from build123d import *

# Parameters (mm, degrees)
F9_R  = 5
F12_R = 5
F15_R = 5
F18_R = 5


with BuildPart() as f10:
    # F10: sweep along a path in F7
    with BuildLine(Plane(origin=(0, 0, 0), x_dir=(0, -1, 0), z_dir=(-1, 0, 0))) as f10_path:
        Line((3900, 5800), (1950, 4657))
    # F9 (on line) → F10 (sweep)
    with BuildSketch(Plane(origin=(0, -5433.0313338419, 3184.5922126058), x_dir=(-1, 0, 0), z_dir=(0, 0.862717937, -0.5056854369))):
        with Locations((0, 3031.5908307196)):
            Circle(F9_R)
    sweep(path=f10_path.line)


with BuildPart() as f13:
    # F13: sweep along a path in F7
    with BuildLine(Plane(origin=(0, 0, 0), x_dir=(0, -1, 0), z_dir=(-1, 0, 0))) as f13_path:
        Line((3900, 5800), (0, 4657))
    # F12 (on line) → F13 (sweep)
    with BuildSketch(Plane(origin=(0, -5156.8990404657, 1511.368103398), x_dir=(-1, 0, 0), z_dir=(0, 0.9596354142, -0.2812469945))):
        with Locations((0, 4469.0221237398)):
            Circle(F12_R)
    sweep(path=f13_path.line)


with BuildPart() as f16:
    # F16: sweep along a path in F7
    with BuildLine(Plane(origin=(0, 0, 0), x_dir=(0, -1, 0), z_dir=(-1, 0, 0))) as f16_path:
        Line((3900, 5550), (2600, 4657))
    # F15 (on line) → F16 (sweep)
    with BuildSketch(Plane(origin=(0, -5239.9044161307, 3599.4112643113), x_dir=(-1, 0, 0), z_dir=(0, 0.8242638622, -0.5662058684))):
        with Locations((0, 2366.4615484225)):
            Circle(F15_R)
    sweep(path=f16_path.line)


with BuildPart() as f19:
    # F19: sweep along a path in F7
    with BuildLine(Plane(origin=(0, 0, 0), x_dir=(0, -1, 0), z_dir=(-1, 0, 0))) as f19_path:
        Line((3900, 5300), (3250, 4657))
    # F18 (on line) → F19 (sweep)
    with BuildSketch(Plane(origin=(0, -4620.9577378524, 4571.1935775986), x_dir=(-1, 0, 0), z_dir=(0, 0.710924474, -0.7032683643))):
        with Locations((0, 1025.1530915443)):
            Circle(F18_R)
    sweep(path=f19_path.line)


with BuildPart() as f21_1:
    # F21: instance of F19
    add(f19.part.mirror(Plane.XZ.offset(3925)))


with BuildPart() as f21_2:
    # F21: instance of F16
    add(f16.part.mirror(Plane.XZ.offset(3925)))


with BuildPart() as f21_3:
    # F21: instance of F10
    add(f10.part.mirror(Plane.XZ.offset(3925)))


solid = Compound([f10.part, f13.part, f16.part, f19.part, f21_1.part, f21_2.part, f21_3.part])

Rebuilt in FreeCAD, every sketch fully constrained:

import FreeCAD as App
import Part
import Sketcher
from FreeCAD import Vector
Q = App.Units.Quantity

doc = App.newDocument("Part")
body = doc.addObject("PartDesign::Body", "Body")

# Sketch on an angled plane
sketch1 = body.newObject("Sketcher::SketchObject", "Sketch")
sketch1.Placement = App.Placement(Vector(0, -5433.031334, 3184.592213), App.Rotation(Vector(-1, 0, 0), Vector(0, 0.505685437, 0.862717937), Vector(0, 0.862717937, -0.505685437), "ZXY"))
sketch1.addGeometry(Part.Circle(Vector(0, 3032, 0), Vector(0, 0, 1), 5), False)
sketch1.addConstraint([
    Sketcher.Constraint("PointOnObject", 0, 3, -2),
    Sketcher.Constraint("Diameter", 0, Q("10 mm")),
    Sketcher.Constraint("DistanceY", -1, 1, 0, 3, Q("3031.590831 mm")),
])

# Sketch on an angled plane
sketch2 = body.newObject("Sketcher::SketchObject", "Sketch001")
sketch2.Placement = App.Placement(Vector(0, 1533.031334, 2615.407787), App.Rotation(Vector(0, -0.862717937, 0.505685437), Vector(1, 0, 0), Vector(0, 0.505685437, 0.862717937), "ZXY"))
sketch2.addGeometry(Part.LineSegment(Vector(6298, 0, 0), Vector(4037, 0, 0)), False)
sketch2.addConstraint([
    Sketcher.Constraint("Horizontal", 0),
    Sketcher.Constraint("PointOnObject", 0, 1, -1),
    Sketcher.Constraint("DistanceX", 0, 2, 0, 1, Q("2260.298432 mm")),
    Sketcher.Constraint("DistanceX", -1, 1, 0, 1, Q("6297.575489 mm")),
])
doc.recompute()

additivepipe = body.newObject("PartDesign::AdditivePipe", "AdditivePipe")
additivepipe.Profile = sketch1
additivepipe.Spine = (sketch2, ["Edge1"])
body2 = doc.addObject("PartDesign::Body", "Body001")

# Sketch on an angled plane
sketch3 = body2.newObject("Sketcher::SketchObject", "Sketch002")
sketch3.Placement = App.Placement(Vector(0, -5156.89904, 1511.368103), App.Rotation(Vector(-1, 0, 0), Vector(0, 0.281246994, 0.959635414), Vector(0, 0.959635414, -0.281246994), "ZXY"))
sketch3.addGeometry(Part.Circle(Vector(0, 4469, 0), Vector(0, 0, 1), 5), False)
sketch3.addConstraint([
    Sketcher.Constraint("PointOnObject", 0, 3, -2),
    Sketcher.Constraint("Diameter", 0, Q("10 mm")),
    Sketcher.Constraint("DistanceY", -1, 1, 0, 3, Q("4469.022121 mm")),
])

# Sketch on an angled plane
sketch4 = body2.newObject("Sketcher::SketchObject", "Sketch003")
sketch4.Placement = App.Placement(Vector(0, 1256.89904, 4288.631897), App.Rotation(Vector(0, 0.959635414, -0.281246994), Vector(0.999999999, 0, 0), Vector(0, -0.281246994, -0.959635414), "ZXY"))
sketch4.addGeometry(Part.LineSegment(Vector(-5374, 0, 0), Vector(-1310, 0, 0)), False)
sketch4.addConstraint([
    Sketcher.Constraint("Horizontal", 0),
    Sketcher.Constraint("PointOnObject", 0, 1, -1),
    Sketcher.Constraint("DistanceX", 0, 1, 0, 2, Q("4064.043428 mm")),
    Sketcher.Constraint("DistanceX", 0, 1, -1, 1, Q("5373.81068 mm")),
])
doc.recompute()

additivepipe2 = body2.newObject("PartDesign::AdditivePipe", "AdditivePipe001")
additivepipe2.Profile = sketch3
additivepipe2.Spine = (sketch4, ["Edge1"])
body3 = doc.addObject("PartDesign::Body", "Body002")

# Sketch on an angled plane
sketch5 = body3.newObject("Sketcher::SketchObject", "Sketch004")
sketch5.Placement = App.Placement(Vector(0, -5239.904416, 3599.411264), App.Rotation(Vector(-1, 0, 0), Vector(0, 0.566205868, 0.824263862), Vector(0, 0.824263862, -0.566205868), "ZXY"))
sketch5.addGeometry(Part.Circle(Vector(0, 2366, 0), Vector(0, 0, 1), 5), False)
sketch5.addConstraint([
    Sketcher.Constraint("PointOnObject", 0, 3, -2),
    Sketcher.Constraint("Diameter", 0, Q("10 mm")),
    Sketcher.Constraint("DistanceY", -1, 1, 0, 3, Q("2366.461546 mm")),
])

# Sketch on an angled plane
sketch6 = body3.newObject("Sketcher::SketchObject", "Sketch005")
sketch6.Placement = App.Placement(Vector(0, 1339.904416, 1950.588736), App.Rotation(Vector(0, -0.824263862, 0.566205868), Vector(0.999999999, 0, 0), Vector(0, 0.566205868, 0.824263862), "ZXY"))
sketch6.addGeometry(Part.LineSegment(Vector(6357, 0, 0), Vector(4780, 0, 0)), False)
sketch6.addConstraint([
    Sketcher.Constraint("Horizontal", 0),
    Sketcher.Constraint("PointOnObject", 0, 1, -1),
    Sketcher.Constraint("DistanceX", 0, 2, 0, 1, Q("1577.16486 mm")),
    Sketcher.Constraint("DistanceX", -1, 1, 0, 1, Q("6357.071627 mm")),
])
doc.recompute()

additivepipe3 = body3.newObject("PartDesign::AdditivePipe", "AdditivePipe002")
additivepipe3.Profile = sketch5
additivepipe3.Spine = (sketch6, ["Edge1"])
body4 = doc.addObject("PartDesign::Body", "Body003")

# Sketch on an angled plane
sketch7 = body4.newObject("Sketcher::SketchObject", "Sketch006")
sketch7.Placement = App.Placement(Vector(0, -4620.957738, 4571.193578), App.Rotation(Vector(-1, 0, 0), Vector(0, 0.703268364, 0.710924474), Vector(0, 0.710924474, -0.703268364), "ZXY"))
sketch7.addGeometry(Part.Circle(Vector(0, 1025, 0), Vector(0, 0, 1), 5), False)
sketch7.addConstraint([
    Sketcher.Constraint("PointOnObject", 0, 3, -2),
    Sketcher.Constraint("Diameter", 0, Q("10 mm")),
    Sketcher.Constraint("DistanceY", -1, 1, 0, 3, Q("1025.153091 mm")),
])

# Sketch on an angled plane
sketch8 = body4.newObject("Sketcher::SketchObject", "Sketch007")
sketch8.Placement = App.Placement(Vector(0, 720.957738, 728.806422), App.Rotation(Vector(0, -0.710924474, 0.703268364), Vector(1, 0, 0), Vector(0, 0.703268364, 0.710924474), "ZXY"))
sketch8.addGeometry(Part.LineSegment(Vector(6500, 0, 0), Vector(5586, 0, 0)), False)
sketch8.addConstraint([
    Sketcher.Constraint("Horizontal", 0),
    Sketcher.Constraint("PointOnObject", 0, 1, -1),
    Sketcher.Constraint("DistanceX", 0, 2, 0, 1, Q("914.302466 mm")),
    Sketcher.Constraint("DistanceX", -1, 1, 0, 2, Q("5585.625311 mm")),
])
doc.recompute()

additivepipe4 = body4.newObject("PartDesign::AdditivePipe", "AdditivePipe003")
additivepipe4.Profile = sketch7
additivepipe4.Spine = (sketch8, ["Edge1"])
body5 = doc.addObject("PartDesign::Body", "Body004")
doc.recompute()

mirroring = doc.addObject("Part::Mirroring", "Mirroring")
mirroring.Source = body4
mirroring.Base = Vector(0, -3925, 0)
mirroring.Normal = Vector(0, -1, 0)
body5.BaseFeature = mirroring
doc.recompute()
body6 = doc.addObject("PartDesign::Body", "Body005")
doc.recompute()

mirroring2 = doc.addObject("Part::Mirroring", "Mirroring001")
mirroring2.Source = body3
mirroring2.Base = Vector(0, -3925, 0)
mirroring2.Normal = Vector(0, -1, 0)
body6.BaseFeature = mirroring2
doc.recompute()
body7 = doc.addObject("PartDesign::Body", "Body006")
doc.recompute()

mirroring3 = doc.addObject("Part::Mirroring", "Mirroring002")
mirroring3.Source = body
mirroring3.Base = Vector(0, -3925, 0)
mirroring3.Normal = Vector(0, -1, 0)
body7.BaseFeature = mirroring3
doc.recompute()
mirroring.Visibility = False
mirroring2.Visibility = False
mirroring3.Visibility = False

doc.recompute()
